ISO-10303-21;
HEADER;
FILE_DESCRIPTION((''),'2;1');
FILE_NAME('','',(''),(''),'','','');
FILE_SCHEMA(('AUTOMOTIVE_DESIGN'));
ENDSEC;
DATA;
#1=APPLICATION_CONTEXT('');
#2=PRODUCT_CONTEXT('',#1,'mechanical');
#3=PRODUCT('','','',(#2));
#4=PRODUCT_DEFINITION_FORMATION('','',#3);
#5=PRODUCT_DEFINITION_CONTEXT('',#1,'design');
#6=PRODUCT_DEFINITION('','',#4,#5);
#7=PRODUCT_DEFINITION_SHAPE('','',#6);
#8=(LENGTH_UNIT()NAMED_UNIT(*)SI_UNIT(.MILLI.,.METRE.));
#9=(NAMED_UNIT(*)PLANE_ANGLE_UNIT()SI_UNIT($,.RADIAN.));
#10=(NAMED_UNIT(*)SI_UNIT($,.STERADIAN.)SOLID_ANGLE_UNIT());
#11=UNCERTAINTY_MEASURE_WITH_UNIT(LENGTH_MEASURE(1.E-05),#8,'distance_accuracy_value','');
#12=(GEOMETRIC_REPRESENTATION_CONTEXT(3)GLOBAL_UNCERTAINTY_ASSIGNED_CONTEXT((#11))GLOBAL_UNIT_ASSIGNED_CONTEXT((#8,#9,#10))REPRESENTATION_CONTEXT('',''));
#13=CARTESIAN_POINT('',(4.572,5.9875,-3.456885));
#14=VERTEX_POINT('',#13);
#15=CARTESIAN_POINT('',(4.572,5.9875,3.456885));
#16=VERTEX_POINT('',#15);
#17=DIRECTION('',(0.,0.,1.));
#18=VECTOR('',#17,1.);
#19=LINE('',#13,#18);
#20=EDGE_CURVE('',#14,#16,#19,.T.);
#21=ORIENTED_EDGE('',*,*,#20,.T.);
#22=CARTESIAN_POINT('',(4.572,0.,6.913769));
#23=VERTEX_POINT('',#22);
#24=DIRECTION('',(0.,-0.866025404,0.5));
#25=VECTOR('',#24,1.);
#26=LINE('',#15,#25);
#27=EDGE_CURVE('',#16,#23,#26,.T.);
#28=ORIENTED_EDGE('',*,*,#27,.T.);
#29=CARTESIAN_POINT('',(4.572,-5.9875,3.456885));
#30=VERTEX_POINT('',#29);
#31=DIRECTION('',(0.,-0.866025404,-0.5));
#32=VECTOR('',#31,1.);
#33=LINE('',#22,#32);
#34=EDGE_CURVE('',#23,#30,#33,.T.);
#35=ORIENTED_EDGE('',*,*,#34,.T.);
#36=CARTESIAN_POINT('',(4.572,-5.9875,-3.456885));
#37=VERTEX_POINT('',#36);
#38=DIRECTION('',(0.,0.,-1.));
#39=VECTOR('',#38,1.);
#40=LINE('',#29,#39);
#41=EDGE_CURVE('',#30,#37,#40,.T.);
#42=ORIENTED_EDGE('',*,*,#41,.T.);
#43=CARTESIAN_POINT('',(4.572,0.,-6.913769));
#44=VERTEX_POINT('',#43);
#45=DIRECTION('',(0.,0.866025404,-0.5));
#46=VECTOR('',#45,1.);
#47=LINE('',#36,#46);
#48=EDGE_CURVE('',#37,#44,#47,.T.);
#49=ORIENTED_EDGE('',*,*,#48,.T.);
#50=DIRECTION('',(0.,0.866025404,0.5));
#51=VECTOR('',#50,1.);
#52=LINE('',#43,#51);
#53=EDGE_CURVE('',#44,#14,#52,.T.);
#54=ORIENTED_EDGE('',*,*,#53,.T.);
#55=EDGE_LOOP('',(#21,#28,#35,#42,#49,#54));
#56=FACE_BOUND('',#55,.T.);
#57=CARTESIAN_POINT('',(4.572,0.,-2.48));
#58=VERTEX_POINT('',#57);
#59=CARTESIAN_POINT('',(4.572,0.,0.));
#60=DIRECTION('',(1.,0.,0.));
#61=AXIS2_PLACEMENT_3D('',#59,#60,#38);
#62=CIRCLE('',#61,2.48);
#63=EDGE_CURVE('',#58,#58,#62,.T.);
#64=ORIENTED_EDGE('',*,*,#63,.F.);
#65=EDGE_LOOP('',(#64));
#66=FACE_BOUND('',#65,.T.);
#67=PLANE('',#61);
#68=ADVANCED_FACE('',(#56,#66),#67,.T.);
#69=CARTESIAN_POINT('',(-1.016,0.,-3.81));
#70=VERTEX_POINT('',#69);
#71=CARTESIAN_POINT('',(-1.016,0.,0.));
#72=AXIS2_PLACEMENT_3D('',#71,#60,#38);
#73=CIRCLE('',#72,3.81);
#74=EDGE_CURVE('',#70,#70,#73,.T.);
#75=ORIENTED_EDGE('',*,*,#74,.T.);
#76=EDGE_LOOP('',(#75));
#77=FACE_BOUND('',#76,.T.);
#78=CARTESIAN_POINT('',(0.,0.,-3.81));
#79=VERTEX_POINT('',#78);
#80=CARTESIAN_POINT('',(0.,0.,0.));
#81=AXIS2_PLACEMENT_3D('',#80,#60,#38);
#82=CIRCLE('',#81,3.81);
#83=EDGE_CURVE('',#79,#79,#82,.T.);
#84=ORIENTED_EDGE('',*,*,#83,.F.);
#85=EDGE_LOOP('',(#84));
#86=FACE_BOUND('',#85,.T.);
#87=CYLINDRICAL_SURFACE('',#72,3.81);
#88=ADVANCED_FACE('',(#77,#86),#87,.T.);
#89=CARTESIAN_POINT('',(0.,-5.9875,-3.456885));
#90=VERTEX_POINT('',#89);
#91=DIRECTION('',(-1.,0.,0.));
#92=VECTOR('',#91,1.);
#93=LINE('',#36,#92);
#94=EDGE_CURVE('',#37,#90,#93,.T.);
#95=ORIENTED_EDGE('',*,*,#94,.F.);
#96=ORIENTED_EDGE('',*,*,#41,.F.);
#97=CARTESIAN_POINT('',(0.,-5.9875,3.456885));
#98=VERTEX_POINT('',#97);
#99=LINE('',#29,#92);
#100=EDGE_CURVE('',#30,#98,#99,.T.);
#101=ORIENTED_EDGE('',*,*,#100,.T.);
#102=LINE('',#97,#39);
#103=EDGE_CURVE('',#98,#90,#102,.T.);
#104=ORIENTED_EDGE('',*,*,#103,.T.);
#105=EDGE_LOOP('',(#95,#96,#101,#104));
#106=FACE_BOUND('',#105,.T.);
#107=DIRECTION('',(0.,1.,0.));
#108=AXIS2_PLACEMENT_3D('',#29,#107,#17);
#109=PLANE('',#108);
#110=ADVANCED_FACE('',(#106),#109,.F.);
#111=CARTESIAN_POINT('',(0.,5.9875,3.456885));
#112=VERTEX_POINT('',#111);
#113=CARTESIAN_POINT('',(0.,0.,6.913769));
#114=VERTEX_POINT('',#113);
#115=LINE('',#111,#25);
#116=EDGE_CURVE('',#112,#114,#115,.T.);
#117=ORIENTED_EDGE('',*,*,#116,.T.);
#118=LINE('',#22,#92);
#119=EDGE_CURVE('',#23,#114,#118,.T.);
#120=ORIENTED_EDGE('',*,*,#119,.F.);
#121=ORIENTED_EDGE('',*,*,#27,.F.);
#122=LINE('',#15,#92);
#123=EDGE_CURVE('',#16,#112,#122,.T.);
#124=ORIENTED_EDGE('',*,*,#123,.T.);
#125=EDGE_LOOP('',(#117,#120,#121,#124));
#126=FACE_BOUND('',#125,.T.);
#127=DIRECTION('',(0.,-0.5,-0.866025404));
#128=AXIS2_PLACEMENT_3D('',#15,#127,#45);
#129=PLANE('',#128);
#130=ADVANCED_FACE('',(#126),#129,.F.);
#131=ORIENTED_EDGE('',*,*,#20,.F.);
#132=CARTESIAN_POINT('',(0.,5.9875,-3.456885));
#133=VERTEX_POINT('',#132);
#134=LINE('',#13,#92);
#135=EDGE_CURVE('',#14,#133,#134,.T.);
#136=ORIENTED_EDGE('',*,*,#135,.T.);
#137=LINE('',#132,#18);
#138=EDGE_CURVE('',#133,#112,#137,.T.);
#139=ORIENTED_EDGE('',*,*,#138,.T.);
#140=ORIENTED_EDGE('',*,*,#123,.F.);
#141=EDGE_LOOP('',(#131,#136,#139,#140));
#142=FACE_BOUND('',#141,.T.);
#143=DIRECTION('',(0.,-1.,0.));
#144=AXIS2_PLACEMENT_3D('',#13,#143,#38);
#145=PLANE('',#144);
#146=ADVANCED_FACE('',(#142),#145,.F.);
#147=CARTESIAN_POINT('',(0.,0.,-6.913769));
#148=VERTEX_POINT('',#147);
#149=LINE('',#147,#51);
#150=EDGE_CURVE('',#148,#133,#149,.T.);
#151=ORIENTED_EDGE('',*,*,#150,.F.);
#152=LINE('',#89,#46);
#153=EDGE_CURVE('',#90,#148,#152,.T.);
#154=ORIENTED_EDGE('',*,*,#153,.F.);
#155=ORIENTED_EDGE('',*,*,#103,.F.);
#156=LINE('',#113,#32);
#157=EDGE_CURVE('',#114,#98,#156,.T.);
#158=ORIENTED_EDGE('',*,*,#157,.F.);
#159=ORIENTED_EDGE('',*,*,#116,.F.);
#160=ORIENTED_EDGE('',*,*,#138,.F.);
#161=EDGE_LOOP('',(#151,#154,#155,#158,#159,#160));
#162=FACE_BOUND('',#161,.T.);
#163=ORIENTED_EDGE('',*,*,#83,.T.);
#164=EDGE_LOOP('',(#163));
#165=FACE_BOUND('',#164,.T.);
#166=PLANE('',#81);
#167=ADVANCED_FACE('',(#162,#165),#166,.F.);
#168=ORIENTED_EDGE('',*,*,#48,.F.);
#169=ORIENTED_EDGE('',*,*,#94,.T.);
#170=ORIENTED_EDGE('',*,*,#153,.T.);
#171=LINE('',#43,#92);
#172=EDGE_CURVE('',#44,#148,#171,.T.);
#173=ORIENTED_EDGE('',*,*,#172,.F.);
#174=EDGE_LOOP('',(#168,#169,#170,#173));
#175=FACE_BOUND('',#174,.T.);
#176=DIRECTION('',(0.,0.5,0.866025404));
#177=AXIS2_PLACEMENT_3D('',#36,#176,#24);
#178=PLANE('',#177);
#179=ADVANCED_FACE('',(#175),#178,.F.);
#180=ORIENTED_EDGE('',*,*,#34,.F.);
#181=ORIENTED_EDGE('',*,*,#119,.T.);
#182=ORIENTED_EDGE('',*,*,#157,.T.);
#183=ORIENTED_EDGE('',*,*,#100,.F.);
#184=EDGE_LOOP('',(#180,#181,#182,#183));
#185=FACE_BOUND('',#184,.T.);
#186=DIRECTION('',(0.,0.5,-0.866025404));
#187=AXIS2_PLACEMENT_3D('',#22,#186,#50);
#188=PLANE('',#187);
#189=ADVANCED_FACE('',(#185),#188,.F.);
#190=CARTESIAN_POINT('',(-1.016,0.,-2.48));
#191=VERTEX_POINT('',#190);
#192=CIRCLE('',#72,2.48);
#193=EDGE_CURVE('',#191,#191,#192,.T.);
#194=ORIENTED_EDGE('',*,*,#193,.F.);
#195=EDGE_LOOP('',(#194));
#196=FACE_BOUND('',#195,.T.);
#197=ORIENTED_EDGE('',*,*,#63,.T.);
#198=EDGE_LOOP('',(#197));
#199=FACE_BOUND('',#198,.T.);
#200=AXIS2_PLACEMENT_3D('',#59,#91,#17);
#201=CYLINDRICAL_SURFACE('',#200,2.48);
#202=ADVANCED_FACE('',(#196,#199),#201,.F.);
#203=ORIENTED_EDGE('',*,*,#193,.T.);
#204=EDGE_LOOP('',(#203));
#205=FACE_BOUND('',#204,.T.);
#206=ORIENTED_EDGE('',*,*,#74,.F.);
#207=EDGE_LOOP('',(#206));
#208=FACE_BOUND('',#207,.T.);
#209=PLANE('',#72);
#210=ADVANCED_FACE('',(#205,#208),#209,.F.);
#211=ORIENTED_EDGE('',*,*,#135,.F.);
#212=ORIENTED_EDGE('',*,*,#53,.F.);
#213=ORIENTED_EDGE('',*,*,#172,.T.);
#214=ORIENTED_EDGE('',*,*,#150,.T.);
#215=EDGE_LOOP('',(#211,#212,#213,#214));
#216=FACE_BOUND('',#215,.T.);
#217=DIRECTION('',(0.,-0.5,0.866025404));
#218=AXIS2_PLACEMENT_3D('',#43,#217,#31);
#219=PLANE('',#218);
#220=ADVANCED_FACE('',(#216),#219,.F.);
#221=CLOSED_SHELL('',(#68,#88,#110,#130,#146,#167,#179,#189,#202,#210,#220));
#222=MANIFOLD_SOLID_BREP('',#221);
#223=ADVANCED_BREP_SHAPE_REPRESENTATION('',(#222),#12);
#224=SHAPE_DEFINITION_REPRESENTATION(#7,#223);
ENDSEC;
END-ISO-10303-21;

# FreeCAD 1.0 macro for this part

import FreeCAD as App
import Part
import Sketcher
Q = App.Units.Quantity

doc = App.newDocument("Part")
body = doc.addObject("PartDesign::Body", "Body")

sketch1 = body.newObject("Sketcher::SketchObject", "Sketch")
sketch1.AttachmentSupport = (doc.getObject("YZ_Plane"), [""])
sketch1.MapMode = "FlatFace"
sketch1.addGeometry(Part.LineSegment(App.Vector(-6, -3.5, 0), App.Vector(0, -6.9, 0)), False)
sketch1.addGeometry(Part.LineSegment(App.Vector(0, -6.9, 0), App.Vector(6, -3.5, 0)), False)
sketch1.addGeometry(Part.LineSegment(App.Vector(6, -3.5, 0), App.Vector(6, 3.5, 0)), False)
sketch1.addGeometry(Part.LineSegment(App.Vector(6, 3.5, 0), App.Vector(0, 6.9, 0)), False)
sketch1.addGeometry(Part.LineSegment(App.Vector(0, 6.9, 0), App.Vector(-6, 3.5, 0)), False)
sketch1.addGeometry(Part.LineSegment(App.Vector(-6, 3.5, 0), App.Vector(-6, -3.5, 0)), False)
sketch1.addGeometry(Part.Circle(App.Vector(0, 0, 0), App.Vector(0, 0, 1), 2.5), False)
sketch1.addConstraint(Sketcher.Constraint("Coincident", 0, 2, 1, 1))
sketch1.addConstraint(Sketcher.Constraint("Coincident", 1, 2, 2, 1))
sketch1.addConstraint(Sketcher.Constraint("Coincident", 2, 2, 3, 1))
sketch1.addConstraint(Sketcher.Constraint("Coincident", 3, 2, 4, 1))
sketch1.addConstraint(Sketcher.Constraint("Coincident", 4, 2, 5, 1))
sketch1.addConstraint(Sketcher.Constraint("Coincident", 5, 2, 0, 1))
sketch1.addConstraint(Sketcher.Constraint("Vertical", 2))
sketch1.addConstraint(Sketcher.Constraint("Vertical", 5))
sketch1.addConstraint(Sketcher.Constraint("Coincident", 6, 3, -1, 1))
sketch1.addConstraint(Sketcher.Constraint("Symmetric", 0, 2, 3, 2, -1, 1))
sketch1.addConstraint(Sketcher.Constraint("Symmetric", 1, 2, 4, 2, -1, 1))
sketch1.addConstraint(Sketcher.Constraint("PointOnObject", 0, 2, -2))
sketch1.addConstraint(Sketcher.Constraint("Parallel", 0, 3))
sketch1.addConstraint(Sketcher.Constraint("Horizontal", 2, 2, 4, 2))
sketch1.addConstraint(Sketcher.Constraint("Angle", 0, Q("-30 deg")))
sketch1.addConstraint(Sketcher.Constraint("Diameter", 6, 4.96))
sketch1.addConstraint(Sketcher.Constraint("DistanceY", 2, 1, 2, 2, 6.913769))
sketch1.addConstraint(Sketcher.Constraint("DistanceX", -1, 1, 1, 2, 5.9875))
pad1 = body.newObject("PartDesign::Pad", "Pad")
pad1.Profile = sketch1
pad1.Length = Q("0.18 in")

sketch2 = body.newObject("Sketcher::SketchObject", "Sketch001")
sketch2.AttachmentSupport = (doc.getObject("YZ_Plane"), [""])
sketch2.MapMode = "FlatFace"
sketch2.addGeometry(Part.Circle(App.Vector(0, 0, 0), App.Vector(0, 0, 1), 3.8), False)
sketch2.addGeometry(Part.Circle(App.Vector(0, 0, 0), App.Vector(0, 0, 1), 2.5), False)
sketch2.addConstraint(Sketcher.Constraint("Coincident", 0, 3, -1, 1))
sketch2.addConstraint(Sketcher.Constraint("Coincident", 1, 3, -1, 1))
sketch2.addConstraint(Sketcher.Constraint("Diameter", 0, Q("0.3 in")))
sketch2.addConstraint(Sketcher.Constraint("Diameter", 1, 4.96))
pad2 = body.newObject("PartDesign::Pad", "Pad001")
pad2.Profile = sketch2
pad2.Length = Q("0.04 in")
pad2.Reversed = True

doc.recompute()
